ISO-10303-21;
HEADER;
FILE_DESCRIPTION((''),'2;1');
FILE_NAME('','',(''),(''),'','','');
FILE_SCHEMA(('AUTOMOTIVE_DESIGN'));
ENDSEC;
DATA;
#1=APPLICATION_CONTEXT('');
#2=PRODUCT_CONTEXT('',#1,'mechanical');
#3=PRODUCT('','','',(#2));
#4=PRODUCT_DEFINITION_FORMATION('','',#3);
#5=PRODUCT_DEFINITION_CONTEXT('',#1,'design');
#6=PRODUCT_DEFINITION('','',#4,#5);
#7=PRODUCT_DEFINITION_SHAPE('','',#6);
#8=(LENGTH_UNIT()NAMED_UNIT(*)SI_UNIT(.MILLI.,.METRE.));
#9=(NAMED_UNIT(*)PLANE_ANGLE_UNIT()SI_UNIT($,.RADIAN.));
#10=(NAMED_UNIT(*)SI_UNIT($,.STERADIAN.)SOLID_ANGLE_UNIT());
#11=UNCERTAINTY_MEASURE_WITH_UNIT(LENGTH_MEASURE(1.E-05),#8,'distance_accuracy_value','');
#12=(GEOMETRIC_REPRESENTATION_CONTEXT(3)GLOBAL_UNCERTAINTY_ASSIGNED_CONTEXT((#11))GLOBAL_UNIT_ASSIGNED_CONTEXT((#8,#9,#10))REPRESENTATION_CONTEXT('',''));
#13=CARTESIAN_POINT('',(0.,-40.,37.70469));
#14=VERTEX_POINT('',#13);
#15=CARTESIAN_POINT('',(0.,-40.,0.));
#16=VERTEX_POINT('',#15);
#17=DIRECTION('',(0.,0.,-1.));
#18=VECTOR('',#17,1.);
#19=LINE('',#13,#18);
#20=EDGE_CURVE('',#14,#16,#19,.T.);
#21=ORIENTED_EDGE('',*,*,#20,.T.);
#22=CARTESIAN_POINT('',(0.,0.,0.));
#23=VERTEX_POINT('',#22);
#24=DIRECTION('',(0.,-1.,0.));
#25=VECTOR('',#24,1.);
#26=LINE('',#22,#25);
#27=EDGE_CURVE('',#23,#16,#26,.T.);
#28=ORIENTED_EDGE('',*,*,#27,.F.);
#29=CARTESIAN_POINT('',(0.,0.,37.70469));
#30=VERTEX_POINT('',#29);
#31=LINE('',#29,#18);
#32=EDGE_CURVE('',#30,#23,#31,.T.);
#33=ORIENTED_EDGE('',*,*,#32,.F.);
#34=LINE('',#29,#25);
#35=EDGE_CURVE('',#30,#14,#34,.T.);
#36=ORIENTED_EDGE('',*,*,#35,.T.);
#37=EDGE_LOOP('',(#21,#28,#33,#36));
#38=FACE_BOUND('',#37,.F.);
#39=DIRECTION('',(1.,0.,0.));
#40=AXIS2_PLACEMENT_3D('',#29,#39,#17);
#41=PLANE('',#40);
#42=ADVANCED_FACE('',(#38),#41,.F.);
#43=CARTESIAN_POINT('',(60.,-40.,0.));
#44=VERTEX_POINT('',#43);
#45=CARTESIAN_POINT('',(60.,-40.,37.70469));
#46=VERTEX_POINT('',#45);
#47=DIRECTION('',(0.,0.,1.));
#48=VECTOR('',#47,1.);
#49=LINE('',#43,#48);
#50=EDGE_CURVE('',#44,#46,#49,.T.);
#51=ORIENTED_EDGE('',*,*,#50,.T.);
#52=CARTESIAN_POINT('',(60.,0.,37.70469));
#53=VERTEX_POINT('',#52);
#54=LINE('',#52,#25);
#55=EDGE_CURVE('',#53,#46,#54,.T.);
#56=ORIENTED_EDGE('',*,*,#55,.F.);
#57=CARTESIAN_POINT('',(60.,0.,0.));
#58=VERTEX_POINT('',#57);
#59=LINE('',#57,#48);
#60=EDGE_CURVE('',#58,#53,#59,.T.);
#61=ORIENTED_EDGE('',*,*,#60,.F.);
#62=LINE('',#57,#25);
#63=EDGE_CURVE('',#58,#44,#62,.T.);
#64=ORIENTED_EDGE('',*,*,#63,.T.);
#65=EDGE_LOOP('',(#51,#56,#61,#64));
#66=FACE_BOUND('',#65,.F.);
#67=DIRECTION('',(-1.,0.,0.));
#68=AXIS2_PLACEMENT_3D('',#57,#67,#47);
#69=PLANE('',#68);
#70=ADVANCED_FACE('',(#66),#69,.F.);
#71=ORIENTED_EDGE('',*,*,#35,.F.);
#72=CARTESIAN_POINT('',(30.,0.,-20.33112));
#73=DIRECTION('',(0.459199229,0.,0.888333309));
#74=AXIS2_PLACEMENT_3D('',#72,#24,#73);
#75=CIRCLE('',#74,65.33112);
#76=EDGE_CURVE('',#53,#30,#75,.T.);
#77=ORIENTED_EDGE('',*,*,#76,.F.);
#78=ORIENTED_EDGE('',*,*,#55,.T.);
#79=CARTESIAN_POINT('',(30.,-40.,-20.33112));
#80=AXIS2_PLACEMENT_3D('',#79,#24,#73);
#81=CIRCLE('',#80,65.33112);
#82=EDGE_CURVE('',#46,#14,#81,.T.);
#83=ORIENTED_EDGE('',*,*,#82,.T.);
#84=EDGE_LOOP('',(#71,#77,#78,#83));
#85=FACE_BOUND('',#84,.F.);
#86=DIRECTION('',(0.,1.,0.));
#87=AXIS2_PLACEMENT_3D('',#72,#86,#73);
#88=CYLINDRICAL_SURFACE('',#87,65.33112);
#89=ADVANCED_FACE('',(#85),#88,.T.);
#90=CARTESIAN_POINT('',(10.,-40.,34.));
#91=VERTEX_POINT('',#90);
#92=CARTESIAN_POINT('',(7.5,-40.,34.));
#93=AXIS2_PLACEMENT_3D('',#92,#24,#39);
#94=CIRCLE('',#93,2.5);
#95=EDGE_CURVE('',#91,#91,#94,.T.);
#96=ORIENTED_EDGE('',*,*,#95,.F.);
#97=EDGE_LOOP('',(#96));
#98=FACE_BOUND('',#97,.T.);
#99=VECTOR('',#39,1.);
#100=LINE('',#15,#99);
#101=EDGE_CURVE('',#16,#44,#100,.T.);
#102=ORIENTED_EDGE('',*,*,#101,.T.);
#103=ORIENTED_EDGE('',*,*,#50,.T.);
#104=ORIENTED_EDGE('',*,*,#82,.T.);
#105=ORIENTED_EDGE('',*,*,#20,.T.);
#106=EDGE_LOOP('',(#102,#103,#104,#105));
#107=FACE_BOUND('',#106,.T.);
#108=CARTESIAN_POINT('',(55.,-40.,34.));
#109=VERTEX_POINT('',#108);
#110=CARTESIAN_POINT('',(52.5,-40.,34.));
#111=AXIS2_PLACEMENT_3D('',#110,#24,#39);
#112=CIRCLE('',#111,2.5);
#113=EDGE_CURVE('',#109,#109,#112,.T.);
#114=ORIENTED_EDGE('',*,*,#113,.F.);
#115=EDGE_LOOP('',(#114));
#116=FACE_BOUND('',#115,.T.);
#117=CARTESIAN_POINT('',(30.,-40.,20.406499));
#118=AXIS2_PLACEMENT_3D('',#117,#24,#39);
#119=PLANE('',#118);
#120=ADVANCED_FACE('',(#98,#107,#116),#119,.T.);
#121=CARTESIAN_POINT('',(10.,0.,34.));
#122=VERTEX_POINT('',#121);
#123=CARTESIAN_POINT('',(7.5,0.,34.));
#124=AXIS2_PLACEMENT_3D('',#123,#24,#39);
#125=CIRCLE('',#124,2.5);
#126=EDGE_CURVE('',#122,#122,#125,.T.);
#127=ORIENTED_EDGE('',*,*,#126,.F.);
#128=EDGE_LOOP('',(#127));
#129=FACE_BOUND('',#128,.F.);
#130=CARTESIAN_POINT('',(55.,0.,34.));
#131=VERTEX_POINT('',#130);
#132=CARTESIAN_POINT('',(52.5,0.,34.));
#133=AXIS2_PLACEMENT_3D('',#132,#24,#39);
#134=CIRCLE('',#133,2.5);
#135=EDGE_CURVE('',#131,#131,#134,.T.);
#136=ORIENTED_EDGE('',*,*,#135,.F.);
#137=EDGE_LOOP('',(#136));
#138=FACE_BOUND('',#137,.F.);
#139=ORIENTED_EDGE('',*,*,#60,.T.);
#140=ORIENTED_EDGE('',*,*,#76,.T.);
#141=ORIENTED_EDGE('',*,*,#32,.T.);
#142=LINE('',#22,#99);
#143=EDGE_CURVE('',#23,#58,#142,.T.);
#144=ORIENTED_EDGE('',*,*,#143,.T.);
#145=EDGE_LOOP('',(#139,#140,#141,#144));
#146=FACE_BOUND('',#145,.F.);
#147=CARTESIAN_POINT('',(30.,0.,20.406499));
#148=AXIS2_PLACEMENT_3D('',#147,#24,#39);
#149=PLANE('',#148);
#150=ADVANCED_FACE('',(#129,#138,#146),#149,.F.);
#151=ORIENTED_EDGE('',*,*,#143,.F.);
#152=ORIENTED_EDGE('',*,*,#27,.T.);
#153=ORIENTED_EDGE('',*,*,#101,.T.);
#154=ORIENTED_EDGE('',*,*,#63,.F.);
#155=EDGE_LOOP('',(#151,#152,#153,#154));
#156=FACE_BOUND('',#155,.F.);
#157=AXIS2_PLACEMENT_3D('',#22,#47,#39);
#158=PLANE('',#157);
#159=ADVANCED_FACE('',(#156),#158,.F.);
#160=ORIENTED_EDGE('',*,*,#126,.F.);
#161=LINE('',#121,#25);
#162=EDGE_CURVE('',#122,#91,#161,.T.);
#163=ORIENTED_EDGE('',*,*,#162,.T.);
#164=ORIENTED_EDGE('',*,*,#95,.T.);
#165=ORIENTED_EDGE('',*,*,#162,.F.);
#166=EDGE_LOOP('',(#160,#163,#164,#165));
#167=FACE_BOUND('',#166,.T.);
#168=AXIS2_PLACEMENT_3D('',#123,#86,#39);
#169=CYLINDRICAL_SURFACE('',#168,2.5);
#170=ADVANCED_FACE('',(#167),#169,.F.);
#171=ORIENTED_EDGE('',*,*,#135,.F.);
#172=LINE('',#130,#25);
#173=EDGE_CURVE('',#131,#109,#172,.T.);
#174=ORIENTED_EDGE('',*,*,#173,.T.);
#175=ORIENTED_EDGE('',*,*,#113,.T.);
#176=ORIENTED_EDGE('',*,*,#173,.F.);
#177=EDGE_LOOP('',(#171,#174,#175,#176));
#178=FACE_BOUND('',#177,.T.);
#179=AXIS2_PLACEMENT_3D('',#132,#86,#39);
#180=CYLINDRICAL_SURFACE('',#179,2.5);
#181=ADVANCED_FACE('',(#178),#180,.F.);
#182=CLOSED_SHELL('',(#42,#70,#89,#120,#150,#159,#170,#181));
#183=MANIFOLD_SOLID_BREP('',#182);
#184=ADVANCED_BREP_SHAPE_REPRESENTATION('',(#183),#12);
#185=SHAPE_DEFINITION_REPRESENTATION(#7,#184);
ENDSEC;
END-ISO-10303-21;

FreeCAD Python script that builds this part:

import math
import FreeCAD as App
import Part
import Sketcher

V = App.Vector

doc = App.newDocument("Part")
params = doc.addObject("Spreadsheet::Sheet", "Params")
for row, (alias, value) in enumerate([
    ("sketch1_diameter", "5 mm"),
    ("sketch1_width", "60 mm"),
    ("pad1_length", "40 mm"),
], start=1):
    params.set(f"A{row}", alias)
    params.set(f"B{row}", "=" + value)
    params.setAlias(f"B{row}", alias)

body = doc.addObject("PartDesign::Body", "Body")

# Sketch on XZ plane
sketch1 = doc.addObject("Sketcher::SketchObject", "Sketch")
body.addObject(sketch1)
sketch1.AttachmentSupport = (doc.XZ_Plane, [""])
sketch1.MapMode = "FlatFace"
sketch1.addGeometry([
    Part.LineSegment(V(0, 37.7, 0), V(0, 0, 0)),  # 0
    Part.LineSegment(V(0, 0, 0), V(60, 0, 0)),  # 1
    Part.LineSegment(V(60, 0, 0), V(60, 37.7, 0)),  # 2
    Part.ArcOfCircle(Part.Circle(V(30, -20.3, 0), V(0, 0, 1), 65.3), math.radians(63), math.radians(117)),  # 3
    Part.Circle(V(7.5, 34, 0), V(0, 0, 1), 2.5),  # 4
    Part.Circle(V(52.5, 34, 0), V(0, 0, 1), 2.5),  # 5
], False)
sketch1.addConstraint([
    Sketcher.Constraint("Coincident", 0, 2, 1, 1),
    Sketcher.Constraint("Coincident", 1, 2, 2, 1),
    Sketcher.Constraint("Coincident", 2, 2, 3, 1),
    Sketcher.Constraint("Coincident", 3, 2, 0, 1),
    Sketcher.Constraint("Vertical", 0),
    Sketcher.Constraint("Horizontal", 1),
    Sketcher.Constraint("Vertical", 2),
    Sketcher.Constraint("Coincident", 0, 2, -1, 1),
    Sketcher.Constraint("Equal", 4, 5),
    Sketcher.Constraint("Horizontal", 4, 3, 5, 3),
    Sketcher.Constraint("Horizontal", 2, 2, 3, 2),
    Sketcher.Constraint("Diameter", 4, 5.0),
    Sketcher.Constraint("DistanceX", 1, 1, 1, 2, 60.0),
    Sketcher.Constraint("DistanceY", -1, 1, 4, 3, 34.0),
    Sketcher.Constraint("DistanceX", 4, 3, 5, 3, 45.0),
    Sketcher.Constraint("DistanceX", -1, 1, 4, 3, 7.5),
    Sketcher.Constraint("Radius", 3, 65.33112),
    Sketcher.Constraint("DistanceY", 0, 2, 0, 1, 37.70469),
])
sketch1.setExpression("Constraints[11]", "Params.sketch1_diameter")
sketch1.setExpression("Constraints[12]", "Params.sketch1_width")
pad1 = doc.addObject("PartDesign::Pad", "Pad")
body.addObject(pad1)
pad1.Profile = sketch1
pad1.setExpression("Length", "Params.pad1_length")

doc.recompute()
